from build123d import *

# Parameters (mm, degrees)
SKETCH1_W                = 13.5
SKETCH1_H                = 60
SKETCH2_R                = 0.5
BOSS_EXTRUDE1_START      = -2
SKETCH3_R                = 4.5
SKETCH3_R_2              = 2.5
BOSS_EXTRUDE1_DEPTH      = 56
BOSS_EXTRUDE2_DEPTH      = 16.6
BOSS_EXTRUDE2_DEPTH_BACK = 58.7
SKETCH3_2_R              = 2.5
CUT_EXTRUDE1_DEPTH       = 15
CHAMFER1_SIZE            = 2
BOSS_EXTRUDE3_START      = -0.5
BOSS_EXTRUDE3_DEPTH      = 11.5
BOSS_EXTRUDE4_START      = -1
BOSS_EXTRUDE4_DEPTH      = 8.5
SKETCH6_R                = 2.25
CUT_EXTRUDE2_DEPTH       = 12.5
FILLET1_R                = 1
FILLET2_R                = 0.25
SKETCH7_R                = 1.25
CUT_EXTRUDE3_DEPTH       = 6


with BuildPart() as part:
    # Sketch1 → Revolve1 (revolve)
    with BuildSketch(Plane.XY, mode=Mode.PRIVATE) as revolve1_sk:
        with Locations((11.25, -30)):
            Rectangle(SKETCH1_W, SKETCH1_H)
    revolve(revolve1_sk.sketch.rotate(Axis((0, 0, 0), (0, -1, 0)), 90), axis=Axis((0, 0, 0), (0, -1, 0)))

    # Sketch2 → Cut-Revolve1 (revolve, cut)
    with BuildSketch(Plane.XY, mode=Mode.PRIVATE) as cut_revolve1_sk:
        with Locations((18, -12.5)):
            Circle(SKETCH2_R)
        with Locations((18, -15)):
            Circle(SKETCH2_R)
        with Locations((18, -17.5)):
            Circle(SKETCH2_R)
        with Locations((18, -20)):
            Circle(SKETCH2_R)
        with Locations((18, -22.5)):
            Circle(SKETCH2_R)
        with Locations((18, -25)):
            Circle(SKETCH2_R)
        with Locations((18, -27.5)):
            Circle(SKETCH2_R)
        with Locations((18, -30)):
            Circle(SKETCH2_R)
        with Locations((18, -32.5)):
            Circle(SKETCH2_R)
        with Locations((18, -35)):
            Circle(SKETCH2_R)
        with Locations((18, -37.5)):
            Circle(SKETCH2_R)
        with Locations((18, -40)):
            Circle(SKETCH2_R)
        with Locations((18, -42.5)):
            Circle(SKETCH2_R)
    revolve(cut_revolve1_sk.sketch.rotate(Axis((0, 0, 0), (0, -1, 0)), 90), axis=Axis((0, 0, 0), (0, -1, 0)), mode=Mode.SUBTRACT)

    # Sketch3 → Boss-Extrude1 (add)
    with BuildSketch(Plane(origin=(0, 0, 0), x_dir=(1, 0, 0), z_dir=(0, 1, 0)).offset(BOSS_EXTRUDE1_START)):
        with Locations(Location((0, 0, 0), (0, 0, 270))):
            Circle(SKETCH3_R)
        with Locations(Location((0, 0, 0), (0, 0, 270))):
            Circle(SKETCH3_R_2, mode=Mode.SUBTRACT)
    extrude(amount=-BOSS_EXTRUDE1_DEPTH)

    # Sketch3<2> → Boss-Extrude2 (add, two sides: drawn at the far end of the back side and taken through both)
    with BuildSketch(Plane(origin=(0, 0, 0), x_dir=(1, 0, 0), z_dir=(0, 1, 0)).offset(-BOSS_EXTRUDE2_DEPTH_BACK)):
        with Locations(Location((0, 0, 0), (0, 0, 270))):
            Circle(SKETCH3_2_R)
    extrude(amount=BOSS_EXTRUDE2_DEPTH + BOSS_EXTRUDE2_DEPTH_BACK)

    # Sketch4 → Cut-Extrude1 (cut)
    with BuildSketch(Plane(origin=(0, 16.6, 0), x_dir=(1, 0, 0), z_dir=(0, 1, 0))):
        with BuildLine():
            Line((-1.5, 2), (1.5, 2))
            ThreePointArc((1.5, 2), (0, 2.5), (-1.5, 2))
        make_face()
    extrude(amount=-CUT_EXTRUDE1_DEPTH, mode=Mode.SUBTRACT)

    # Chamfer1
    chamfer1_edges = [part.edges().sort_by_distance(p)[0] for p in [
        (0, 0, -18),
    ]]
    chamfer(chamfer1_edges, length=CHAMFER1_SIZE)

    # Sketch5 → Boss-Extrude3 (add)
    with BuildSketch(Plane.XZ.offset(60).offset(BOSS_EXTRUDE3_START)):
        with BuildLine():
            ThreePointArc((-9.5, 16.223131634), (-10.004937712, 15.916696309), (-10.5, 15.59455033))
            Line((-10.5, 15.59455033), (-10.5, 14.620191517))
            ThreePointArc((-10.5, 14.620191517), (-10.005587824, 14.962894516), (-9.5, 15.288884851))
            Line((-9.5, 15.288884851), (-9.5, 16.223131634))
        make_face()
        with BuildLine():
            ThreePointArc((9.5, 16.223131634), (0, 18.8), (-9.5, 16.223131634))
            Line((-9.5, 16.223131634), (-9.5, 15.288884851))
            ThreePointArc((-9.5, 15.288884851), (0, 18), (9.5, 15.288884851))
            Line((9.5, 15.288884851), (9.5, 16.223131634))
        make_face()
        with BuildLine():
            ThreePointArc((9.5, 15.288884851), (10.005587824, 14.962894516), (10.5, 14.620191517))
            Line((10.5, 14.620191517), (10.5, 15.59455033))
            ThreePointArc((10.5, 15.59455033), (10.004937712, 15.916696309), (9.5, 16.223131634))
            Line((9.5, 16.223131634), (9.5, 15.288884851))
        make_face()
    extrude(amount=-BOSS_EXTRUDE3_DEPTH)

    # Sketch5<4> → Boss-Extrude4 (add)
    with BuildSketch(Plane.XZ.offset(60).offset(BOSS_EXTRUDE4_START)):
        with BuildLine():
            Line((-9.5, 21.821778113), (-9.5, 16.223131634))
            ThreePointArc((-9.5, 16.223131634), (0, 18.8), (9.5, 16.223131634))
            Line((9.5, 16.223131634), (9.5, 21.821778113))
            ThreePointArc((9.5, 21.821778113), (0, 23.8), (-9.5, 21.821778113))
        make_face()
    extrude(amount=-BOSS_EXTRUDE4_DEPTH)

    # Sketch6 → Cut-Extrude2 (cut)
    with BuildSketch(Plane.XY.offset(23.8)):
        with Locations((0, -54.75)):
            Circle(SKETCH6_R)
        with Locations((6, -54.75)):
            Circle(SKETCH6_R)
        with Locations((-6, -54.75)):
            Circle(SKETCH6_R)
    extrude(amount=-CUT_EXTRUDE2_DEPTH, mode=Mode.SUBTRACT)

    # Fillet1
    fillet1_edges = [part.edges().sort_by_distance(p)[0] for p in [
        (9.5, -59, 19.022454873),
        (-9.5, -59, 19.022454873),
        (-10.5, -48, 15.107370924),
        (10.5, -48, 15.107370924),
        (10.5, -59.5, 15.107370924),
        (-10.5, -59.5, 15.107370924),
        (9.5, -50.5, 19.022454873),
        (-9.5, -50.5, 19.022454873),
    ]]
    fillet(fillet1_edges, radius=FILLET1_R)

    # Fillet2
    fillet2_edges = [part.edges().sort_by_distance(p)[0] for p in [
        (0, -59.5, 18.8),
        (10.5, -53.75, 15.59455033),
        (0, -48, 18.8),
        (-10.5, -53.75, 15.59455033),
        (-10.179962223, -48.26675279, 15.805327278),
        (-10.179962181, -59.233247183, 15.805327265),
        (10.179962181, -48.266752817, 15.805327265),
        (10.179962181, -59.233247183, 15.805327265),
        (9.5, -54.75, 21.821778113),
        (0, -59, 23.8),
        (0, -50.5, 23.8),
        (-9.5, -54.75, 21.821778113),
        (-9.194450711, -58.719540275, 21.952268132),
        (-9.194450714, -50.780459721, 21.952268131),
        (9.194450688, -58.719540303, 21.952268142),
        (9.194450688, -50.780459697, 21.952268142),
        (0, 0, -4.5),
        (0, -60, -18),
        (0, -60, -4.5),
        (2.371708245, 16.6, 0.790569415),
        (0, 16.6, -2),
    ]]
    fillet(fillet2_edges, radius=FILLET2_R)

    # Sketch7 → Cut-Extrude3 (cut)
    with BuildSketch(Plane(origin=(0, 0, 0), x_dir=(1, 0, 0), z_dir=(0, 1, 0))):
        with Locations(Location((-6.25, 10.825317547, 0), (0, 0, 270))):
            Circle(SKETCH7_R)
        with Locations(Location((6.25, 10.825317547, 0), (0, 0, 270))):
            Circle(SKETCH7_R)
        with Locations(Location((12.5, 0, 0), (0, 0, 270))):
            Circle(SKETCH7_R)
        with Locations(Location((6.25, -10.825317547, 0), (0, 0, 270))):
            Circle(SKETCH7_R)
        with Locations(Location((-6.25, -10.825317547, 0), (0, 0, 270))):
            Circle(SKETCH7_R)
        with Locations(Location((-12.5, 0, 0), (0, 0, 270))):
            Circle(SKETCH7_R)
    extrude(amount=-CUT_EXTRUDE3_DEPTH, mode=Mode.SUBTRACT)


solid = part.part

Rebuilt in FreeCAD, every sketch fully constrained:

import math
import FreeCAD as App
import Part
import Sketcher
from FreeCAD import Vector


def edges_at(feature, points):
    """Names of the edges that pass closest to the given points."""
    edges = feature.Shape.Edges
    near = lambda p: min(range(len(edges)), key=lambda i: edges[i].distToShape(Part.Vertex(*p))[0])
    return sorted({f"Edge{near(p) + 1}" for p in points})

doc = App.newDocument("Part")
body = doc.addObject("PartDesign::Body", "Body")

sketch1 = doc.addObject("Sketcher::SketchObject", "Sketch")
body.addObject(sketch1)
sketch1.AttachmentSupport = (doc.XY_Plane, [""])
sketch1.MapMode = "FlatFace"
sketch1.addGeometry(Part.LineSegment(Vector(4, 0, 0), Vector(4, -60, 0)), False)
sketch1.addGeometry(Part.LineSegment(Vector(4, -60, 0), Vector(18, -60, 0)), False)
sketch1.addGeometry(Part.LineSegment(Vector(18, -60, 0), Vector(18, 0, 0)), False)
sketch1.addGeometry(Part.LineSegment(Vector(18, 0, 0), Vector(4, 0, 0)), False)
sketch1.addConstraint(Sketcher.Constraint("Coincident", 0, 2, 1, 1))
sketch1.addConstraint(Sketcher.Constraint("Coincident", 1, 2, 2, 1))
sketch1.addConstraint(Sketcher.Constraint("Coincident", 2, 2, 3, 1))
sketch1.addConstraint(Sketcher.Constraint("Coincident", 3, 2, 0, 1))
sketch1.addConstraint(Sketcher.Constraint("Vertical", 0))
sketch1.addConstraint(Sketcher.Constraint("Horizontal", 1))
sketch1.addConstraint(Sketcher.Constraint("Vertical", 2))
sketch1.addConstraint(Sketcher.Constraint("Horizontal", 3))
sketch1.addConstraint(Sketcher.Constraint("PointOnObject", 2, 2, -1))
sketch1.addConstraint(Sketcher.Constraint("DistanceY", 0, 2, 0, 1, 60.0))
sketch1.addConstraint(Sketcher.Constraint("DistanceX", 1, 1, 1, 2, 13.5))
sketch1.addConstraint(Sketcher.Constraint("DistanceX", -1, 1, 1, 2, 18.0))
revolution = doc.addObject("PartDesign::Revolution", "Revolution")
body.addObject(revolution)
revolution.Profile = sketch1
revolution.ReferenceAxis = (sketch1, ["V_Axis"])
revolution.Angle = 360

sketch2 = doc.addObject("Sketcher::SketchObject", "Sketch001")
body.addObject(sketch2)
sketch2.AttachmentSupport = (doc.XY_Plane, [""])
sketch2.MapMode = "FlatFace"
sketch2.addGeometry(Part.Circle(Vector(18, -12.5, 0), Vector(0, 0, 1), 0.5), False)
sketch2.addGeometry(Part.Circle(Vector(18, -15, 0), Vector(0, 0, 1), 0.5), False)
sketch2.addGeometry(Part.Circle(Vector(18, -17.5, 0), Vector(0, 0, 1), 0.5), False)
sketch2.addGeometry(Part.Circle(Vector(18, -20, 0), Vector(0, 0, 1), 0.5), False)
sketch2.addGeometry(Part.Circle(Vector(18, -22.5, 0), Vector(0, 0, 1), 0.5), False)
sketch2.addGeometry(Part.Circle(Vector(18, -25, 0), Vector(0, 0, 1), 0.5), False)
sketch2.addGeometry(Part.Circle(Vector(18, -27.5, 0), Vector(0, 0, 1), 0.5), False)
sketch2.addGeometry(Part.Circle(Vector(18, -30, 0), Vector(0, 0, 1), 0.5), False)
sketch2.addGeometry(Part.Circle(Vector(18, -32.5, 0), Vector(0, 0, 1), 0.5), False)
sketch2.addGeometry(Part.Circle(Vector(18, -35, 0), Vector(0, 0, 1), 0.5), False)
sketch2.addGeometry(Part.Circle(Vector(18, -37.5, 0), Vector(0, 0, 1), 0.5), False)
sketch2.addGeometry(Part.Circle(Vector(18, -40, 0), Vector(0, 0, 1), 0.5), False)
sketch2.addGeometry(Part.Circle(Vector(18, -42.5, 0), Vector(0, 0, 1), 0.5), False)
sketch2.addConstraint(Sketcher.Constraint("Equal", 0, 1))
sketch2.addConstraint(Sketcher.Constraint("Equal", 1, 2))
sketch2.addConstraint(Sketcher.Constraint("Equal", 2, 3))
sketch2.addConstraint(Sketcher.Constraint("Equal", 3, 4))
sketch2.addConstraint(Sketcher.Constraint("Equal", 4, 5))
sketch2.addConstraint(Sketcher.Constraint("Equal", 5, 6))
sketch2.addConstraint(Sketcher.Constraint("Equal", 6, 7))
sketch2.addConstraint(Sketcher.Constraint("Equal", 7, 8))
sketch2.addConstraint(Sketcher.Constraint("Equal", 8, 9))
sketch2.addConstraint(Sketcher.Constraint("Equal", 9, 10))
sketch2.addConstraint(Sketcher.Constraint("Equal", 10, 11))
sketch2.addConstraint(Sketcher.Constraint("Equal", 11, 12))
sketch2.addConstraint(Sketcher.Constraint("Vertical", 0, 3, 1, 3))
sketch2.addConstraint(Sketcher.Constraint("Vertical", 1, 3, 2, 3))
sketch2.addConstraint(Sketcher.Constraint("Vertical", 2, 3, 3, 3))
sketch2.addConstraint(Sketcher.Constraint("Vertical", 3, 3, 4, 3))
sketch2.addConstraint(Sketcher.Constraint("Vertical", 4, 3, 5, 3))
sketch2.addConstraint(Sketcher.Constraint("Vertical", 5, 3, 6, 3))
sketch2.addConstraint(Sketcher.Constraint("Vertical", 6, 3, 7, 3))
sketch2.addConstraint(Sketcher.Constraint("Vertical", 7, 3, 8, 3))
sketch2.addConstraint(Sketcher.Constraint("Vertical", 8, 3, 9, 3))
sketch2.addConstraint(Sketcher.Constraint("Vertical", 9, 3, 10, 3))
sketch2.addConstraint(Sketcher.Constraint("Vertical", 10, 3, 11, 3))
sketch2.addConstraint(Sketcher.Constraint("Vertical", 11, 3, 12, 3))
sketch2.addConstraint(Sketcher.Constraint("Diameter", 0, 1.0))
sketch2.addConstraint(Sketcher.Constraint("DistanceX", -1, 1, 0, 3, 18.0))
sketch2.addConstraint(Sketcher.Constraint("DistanceY", 1, 3, -1, 1, 15.0))
sketch2.addConstraint(Sketcher.Constraint("DistanceY", 3, 3, -1, 1, 20.0))
sketch2.addConstraint(Sketcher.Constraint("DistanceY", 5, 3, -1, 1, 25.0))
sketch2.addConstraint(Sketcher.Constraint("DistanceY", 7, 3, -1, 1, 30.0))
sketch2.addConstraint(Sketcher.Constraint("DistanceY", 9, 3, -1, 1, 35.0))
sketch2.addConstraint(Sketcher.Constraint("DistanceY", 11, 3, -1, 1, 40.0))
sketch2.addConstraint(Sketcher.Constraint("DistanceY", 2, 3, 0, 3, 5.0))
sketch2.addConstraint(Sketcher.Constraint("DistanceY", 4, 3, 2, 3, 5.0))
sketch2.addConstraint(Sketcher.Constraint("DistanceY", 6, 3, 4, 3, 5.0))
sketch2.addConstraint(Sketcher.Constraint("DistanceY", 8, 3, 6, 3, 5.0))
sketch2.addConstraint(Sketcher.Constraint("DistanceY", 10, 3, 8, 3, 5.0))
sketch2.addConstraint(Sketcher.Constraint("DistanceY", 12, 3, 10, 3, 5.0))
sketch2.addConstraint(Sketcher.Constraint("DistanceY", 0, 3, -1, 1, 12.5))
groove = doc.addObject("PartDesign::Groove", "Groove")
body.addObject(groove)
groove.Profile = sketch2
groove.ReferenceAxis = (sketch2, ["V_Axis"])
groove.Angle = 360

sketch3 = doc.addObject("Sketcher::SketchObject", "Sketch002")
body.addObject(sketch3)
sketch3.AttachmentSupport = (doc.XZ_Plane, [""])
sketch3.MapMode = "FlatFace"
sketch3.AttachmentOffset = App.Placement(Vector(0, 0, 2), App.Rotation())
sketch3.addGeometry(Part.Circle(Vector(0, 0, 0), Vector(0, 0, 1), 4.5), False)
sketch3.addGeometry(Part.Circle(Vector(0, 0, 0), Vector(0, 0, 1), 2.5), False)
sketch3.addConstraint(Sketcher.Constraint("Coincident", 0, 3, -1, 1))
sketch3.addConstraint(Sketcher.Constraint("Coincident", 1, 3, -1, 1))
sketch3.addConstraint(Sketcher.Constraint("Diameter", 0, 9.0))
sketch3.addConstraint(Sketcher.Constraint("Diameter", 1, 5.0))
pad1 = doc.addObject("PartDesign::Pad", "Pad")
body.addObject(pad1)
pad1.Profile = sketch3
pad1.Length = 56

sketch4 = doc.addObject("Sketcher::SketchObject", "Sketch003")
body.addObject(sketch4)
sketch4.AttachmentSupport = (doc.XZ_Plane, [""])
sketch4.MapMode = "FlatFace"
sketch4.addGeometry(Part.Circle(Vector(0, 0, 0), Vector(0, 0, 1), 2.5), False)
sketch4.addConstraint(Sketcher.Constraint("Coincident", 0, 3, -1, 1))
sketch4.addConstraint(Sketcher.Constraint("Diameter", 0, 5.0))
pad2 = doc.addObject("PartDesign::Pad", "Pad001")
body.addObject(pad2)
pad2.Profile = sketch4
pad2.Type = "TwoLengths"
pad2.Length = 16.6
pad2.Length2 = 58.7
pad2.Reversed = True

sketch5 = doc.addObject("Sketcher::SketchObject", "Sketch004")
body.addObject(sketch5)
sketch5.AttachmentSupport = (doc.XZ_Plane, [""])
sketch5.MapMode = "FlatFace"
sketch5.AttachmentOffset = App.Placement(Vector(0, 0, -16.6), App.Rotation())
sketch5.addGeometry(Part.LineSegment(Vector(-1.5, -2, 0), Vector(1.5, -2, 0)), False)
sketch5.addGeometry(Part.ArcOfCircle(Part.Circle(Vector(0, 0, 0), Vector(0, 0, 1), 2.5), math.radians(-127), math.radians(-53)), False)
sketch5.addConstraint(Sketcher.Constraint("Coincident", 0, 1, 1, 1))
sketch5.addConstraint(Sketcher.Constraint("Coincident", 1, 2, 0, 2))
sketch5.addConstraint(Sketcher.Constraint("Horizontal", 0))
sketch5.addConstraint(Sketcher.Constraint("Coincident", 1, 3, -1, 1))
sketch5.addConstraint(Sketcher.Constraint("Radius", 1, 2.5))
sketch5.addConstraint(Sketcher.Constraint("DistanceX", 0, 1, 0, 2, 3.0))
pocket1 = doc.addObject("PartDesign::Pocket", "Pocket")
body.addObject(pocket1)
pocket1.Profile = sketch5
pocket1.Length = 15
pocket1.Reversed = True
doc.recompute()

chamfer = doc.addObject("PartDesign::Chamfer", "Chamfer")
body.addObject(chamfer)
chamfer.Base = (pocket1, edges_at(pocket1, [(0, 0, -18)]))
chamfer.Size = 2

sketch6 = doc.addObject("Sketcher::SketchObject", "Sketch005")
body.addObject(sketch6)
sketch6.AttachmentSupport = (doc.XZ_Plane, [""])
sketch6.MapMode = "FlatFace"
sketch6.AttachmentOffset = App.Placement(Vector(0, 0, 59.5), App.Rotation())
sketch6.addGeometry(Part.ArcOfCircle(Part.Circle(Vector(0, 0, 0), Vector(0, 0, 1), 18.8), math.radians(120.35), math.radians(123.95)), False)
sketch6.addGeometry(Part.LineSegment(Vector(-10.5, 15.6, 0), Vector(-10.5, 14.6, 0)), False)
sketch6.addGeometry(Part.ArcOfCircle(Part.Circle(Vector(0, 0, 0), Vector(0, 0, 1), 18), math.radians(121.86), math.radians(125.69)), False)
sketch6.addGeometry(Part.ArcOfCircle(Part.Circle(Vector(0, 0, 0), Vector(0, 0, 1), 18), math.radians(58), math.radians(122)), False)
sketch6.addGeometry(Part.ArcOfCircle(Part.Circle(Vector(0, 0, 0), Vector(0, 0, 1), 18), math.radians(54.31), math.radians(58.14)), False)
sketch6.addGeometry(Part.LineSegment(Vector(10.5, 14.6, 0), Vector(10.5, 15.6, 0)), False)
sketch6.addGeometry(Part.ArcOfCircle(Part.Circle(Vector(0, 0, 0), Vector(0, 0, 1), 18.8), math.radians(56.05), math.radians(59.65)), False)
sketch6.addGeometry(Part.ArcOfCircle(Part.Circle(Vector(0, 0, 0), Vector(0, 0, 1), 18.8), math.radians(60), math.radians(120)), False)
sketch6.addConstraint(Sketcher.Constraint("Coincident", 0, 2, 1, 1))
sketch6.addConstraint(Sketcher.Constraint("Coincident", 1, 2, 2, 2))
sketch6.addConstraint(Sketcher.Constraint("Tangent", 2, 1, 3, 2))
sketch6.addConstraint(Sketcher.Constraint("Tangent", 3, 1, 4, 2))
sketch6.addConstraint(Sketcher.Constraint("Coincident", 4, 1, 5, 1))
sketch6.addConstraint(Sketcher.Constraint("Coincident", 5, 2, 6, 1))
sketch6.addConstraint(Sketcher.Constraint("Tangent", 6, 2, 7, 1))
sketch6.addConstraint(Sketcher.Constraint("Tangent", 7, 2, 0, 1))
sketch6.addConstraint(Sketcher.Constraint("Vertical", 1))
sketch6.addConstraint(Sketcher.Constraint("Vertical", 5))
sketch6.addConstraint(Sketcher.Constraint("Coincident", 0, 3, -1, 1))
sketch6.addConstraint(Sketcher.Constraint("Coincident", 2, 3, -1, 1))
sketch6.addConstraint(Sketcher.Constraint("Coincident", 4, 3, -1, 1))
sketch6.addConstraint(Sketcher.Constraint("Coincident", 6, 3, -1, 1))
sketch6.addConstraint(Sketcher.Constraint("Horizontal", 2, 1, 3, 1))
sketch6.addConstraint(Sketcher.Constraint("Horizontal", 1, 2, 4, 1))
sketch6.addConstraint(Sketcher.Constraint("Horizontal", 6, 2, 7, 2))
sketch6.addConstraint(Sketcher.Constraint("Vertical", 3, 1, 6, 2))
sketch6.addConstraint(Sketcher.Constraint("Radius", 2, 17.999999))
sketch6.addConstraint(Sketcher.Constraint("Radius", 0, 18.799999))
sketch6.addConstraint(Sketcher.Constraint("DistanceX", 0, 2, 2, 1, 1.0))
sketch6.addConstraint(Sketcher.Constraint("DistanceX", 0, 2, -1, 1, 10.5))
pad3 = doc.addObject("PartDesign::Pad", "Pad002")
body.addObject(pad3)
pad3.Profile = sketch6
pad3.Length = 11.5
pad3.Reversed = True

sketch7 = doc.addObject("Sketcher::SketchObject", "Sketch006")
body.addObject(sketch7)
sketch7.AttachmentSupport = (doc.XZ_Plane, [""])
sketch7.MapMode = "FlatFace"
sketch7.AttachmentOffset = App.Placement(Vector(0, 0, 59), App.Rotation())
sketch7.addGeometry(Part.LineSegment(Vector(-10, 22, 0), Vector(-10, 16, 0)), False)
sketch7.addGeometry(Part.ArcOfCircle(Part.Circle(Vector(0, 0, 0), Vector(0, 0, 1), 19), math.radians(60), math.radians(120)), False)
sketch7.addGeometry(Part.LineSegment(Vector(10, 16, 0), Vector(10, 22, 0)), False)
sketch7.addGeometry(Part.ArcOfCircle(Part.Circle(Vector(0, 0, 0), Vector(0, 0, 1), 24), math.radians(66), math.radians(114)), False)
sketch7.addConstraint(Sketcher.Constraint("Coincident", 0, 2, 1, 2))
sketch7.addConstraint(Sketcher.Constraint("Coincident", 1, 1, 2, 1))
sketch7.addConstraint(Sketcher.Constraint("Coincident", 2, 2, 3, 1))
sketch7.addConstraint(Sketcher.Constraint("Coincident", 3, 2, 0, 1))
sketch7.addConstraint(Sketcher.Constraint("Vertical", 0))
sketch7.addConstraint(Sketcher.Constraint("Vertical", 2))
sketch7.addConstraint(Sketcher.Constraint("Coincident", 1, 3, -1, 1))
sketch7.addConstraint(Sketcher.Constraint("Coincident", 3, 3, -1, 1))
sketch7.addConstraint(Sketcher.Constraint("Horizontal", 0, 2, 1, 1))
sketch7.addConstraint(Sketcher.Constraint("Radius", 1, 18.8))
sketch7.addConstraint(Sketcher.Constraint("Radius", 3, 23.8))
sketch7.addConstraint(Sketcher.Constraint("DistanceX", 0, 2, 1, 1, 19.0))
pad4 = doc.addObject("PartDesign::Pad", "Pad003")
body.addObject(pad4)
pad4.Profile = sketch7
pad4.Length = 8.5
pad4.Reversed = True

sketch8 = doc.addObject("Sketcher::SketchObject", "Sketch007")
body.addObject(sketch8)
sketch8.AttachmentSupport = (doc.XY_Plane, [""])
sketch8.MapMode = "FlatFace"
sketch8.AttachmentOffset = App.Placement(Vector(0, 0, 23.8), App.Rotation())
sketch8.addGeometry(Part.Circle(Vector(0, -54.8, 0), Vector(0, 0, 1), 2.2), False)
sketch8.addGeometry(Part.Circle(Vector(6, -54.8, 0), Vector(0, 0, 1), 2.2), False)
sketch8.addGeometry(Part.Circle(Vector(-6, -54.8, 0), Vector(0, 0, 1), 2.2), False)
sketch8.addConstraint(Sketcher.Constraint("Equal", 0, 1))
sketch8.addConstraint(Sketcher.Constraint("Equal", 1, 2))
sketch8.addConstraint(Sketcher.Constraint("Symmetric", 1, 3, 2, 3, -2))
sketch8.addConstraint(Sketcher.Constraint("PointOnObject", 0, 3, -2))
sketch8.addConstraint(Sketcher.Constraint("Horizontal", 0, 3, 1, 3))
sketch8.addConstraint(Sketcher.Constraint("Diameter", 0, 4.5))
sketch8.addConstraint(Sketcher.Constraint("DistanceX", -1, 1, 1, 3, 6.0))
sketch8.addConstraint(Sketcher.Constraint("DistanceY", 0, 3, -1, 1, 54.75))
pocket2 = doc.addObject("PartDesign::Pocket", "Pocket001")
body.addObject(pocket2)
pocket2.Profile = sketch8
pocket2.Length = 12.5
doc.recompute()

fillet = doc.addObject("PartDesign::Fillet", "Fillet")
body.addObject(fillet)
fillet.Base = (pocket2, edges_at(pocket2, [
    (9.5, -59, 19.022),
    (-9.5, -59, 19.022),
    (-10.5, -48, 15.107),
    (10.5, -48, 15.107),
    (10.5, -59.5, 15.107),
    (-10.5, -59.5, 15.107),
    (9.5, -50.5, 19.022),
    (-9.5, -50.5, 19.022),
]))
fillet.Radius = 1
doc.recompute()

fillet2 = doc.addObject("PartDesign::Fillet", "Fillet001")
body.addObject(fillet2)
fillet2.Base = (fillet, edges_at(fillet, [
    (0, -59.5, 18.8),
    (10.5, -53.75, 15.595),
    (0, -48, 18.8),
    (-10.5, -53.75, 15.595),
    (-10.18, -48.267, 15.805),
    (-10.18, -59.233, 15.805),
    (10.18, -48.267, 15.805),
    (10.18, -59.233, 15.805),
    (9.5, -54.75, 21.822),
    (0, -59, 23.8),
    (0, -50.5, 23.8),
    (-9.5, -54.75, 21.822),
    (-9.194, -58.72, 21.952),
    (-9.194, -50.78, 21.952),
    (9.194, -58.72, 21.952),
    (9.194, -50.78, 21.952),
    (0, 0, -4.5),
    (0, -60, -18),
    (0, -60, -4.5),
    (2.372, 16.6, 0.791),
    (0, 16.6, -2),
]))
fillet2.Radius = 0.25

sketch9 = doc.addObject("Sketcher::SketchObject", "Sketch008")
body.addObject(sketch9)
sketch9.AttachmentSupport = (doc.XZ_Plane, [""])
sketch9.MapMode = "FlatFace"
sketch9.addGeometry(Part.Circle(Vector(-6.2, -10.8, 0), Vector(0, 0, 1), 1.2), False)
sketch9.addGeometry(Part.Circle(Vector(6.2, -10.8, 0), Vector(0, 0, 1), 1.2), False)
sketch9.addGeometry(Part.Circle(Vector(12.5, 0, 0), Vector(0, 0, 1), 1.2), False)
sketch9.addGeometry(Part.Circle(Vector(6.2, 10.8, 0), Vector(0, 0, 1), 1.2), False)
sketch9.addGeometry(Part.Circle(Vector(-6.2, 10.8, 0), Vector(0, 0, 1), 1.2), False)
sketch9.addGeometry(Part.Circle(Vector(-12.5, 0, 0), Vector(0, 0, 1), 1.2), False)
sketch9.addConstraint(Sketcher.Constraint("Equal", 0, 1))
sketch9.addConstraint(Sketcher.Constraint("Equal", 1, 2))
sketch9.addConstraint(Sketcher.Constraint("Equal", 2, 3))
sketch9.addConstraint(Sketcher.Constraint("Equal", 3, 4))
sketch9.addConstraint(Sketcher.Constraint("Equal", 4, 5))
sketch9.addConstraint(Sketcher.Constraint("Symmetric", 0, 3, 3, 3, -1, 1))
sketch9.addConstraint(Sketcher.Constraint("Symmetric", 1, 3, 4, 3, -1, 1))
sketch9.addConstraint(Sketcher.Constraint("Symmetric", 2, 3, 5, 3, -1, 1))
sketch9.addConstraint(Sketcher.Constraint("Symmetric", 0, 3, 1, 3, -2))
sketch9.addConstraint(Sketcher.Constraint("PointOnObject", 2, 3, -1))
sketch9.addConstraint(Sketcher.Constraint("Diameter", 0, 2.5))
sketch9.addConstraint(Sketcher.Constraint("DistanceX", 5, 3, 2, 3, 25.0))
sketch9.addConstraint(Sketcher.Constraint("DistanceX", 0, 3, 1, 3, 12.5))
sketch9.addConstraint(Sketcher.Constraint("DistanceY", 0, 3, -1, 1, 10.825318))
pocket3 = doc.addObject("PartDesign::Pocket", "Pocket002")
body.addObject(pocket3)
pocket3.Profile = sketch9
pocket3.Length = 6
pocket3.Reversed = True

doc.recompute()
